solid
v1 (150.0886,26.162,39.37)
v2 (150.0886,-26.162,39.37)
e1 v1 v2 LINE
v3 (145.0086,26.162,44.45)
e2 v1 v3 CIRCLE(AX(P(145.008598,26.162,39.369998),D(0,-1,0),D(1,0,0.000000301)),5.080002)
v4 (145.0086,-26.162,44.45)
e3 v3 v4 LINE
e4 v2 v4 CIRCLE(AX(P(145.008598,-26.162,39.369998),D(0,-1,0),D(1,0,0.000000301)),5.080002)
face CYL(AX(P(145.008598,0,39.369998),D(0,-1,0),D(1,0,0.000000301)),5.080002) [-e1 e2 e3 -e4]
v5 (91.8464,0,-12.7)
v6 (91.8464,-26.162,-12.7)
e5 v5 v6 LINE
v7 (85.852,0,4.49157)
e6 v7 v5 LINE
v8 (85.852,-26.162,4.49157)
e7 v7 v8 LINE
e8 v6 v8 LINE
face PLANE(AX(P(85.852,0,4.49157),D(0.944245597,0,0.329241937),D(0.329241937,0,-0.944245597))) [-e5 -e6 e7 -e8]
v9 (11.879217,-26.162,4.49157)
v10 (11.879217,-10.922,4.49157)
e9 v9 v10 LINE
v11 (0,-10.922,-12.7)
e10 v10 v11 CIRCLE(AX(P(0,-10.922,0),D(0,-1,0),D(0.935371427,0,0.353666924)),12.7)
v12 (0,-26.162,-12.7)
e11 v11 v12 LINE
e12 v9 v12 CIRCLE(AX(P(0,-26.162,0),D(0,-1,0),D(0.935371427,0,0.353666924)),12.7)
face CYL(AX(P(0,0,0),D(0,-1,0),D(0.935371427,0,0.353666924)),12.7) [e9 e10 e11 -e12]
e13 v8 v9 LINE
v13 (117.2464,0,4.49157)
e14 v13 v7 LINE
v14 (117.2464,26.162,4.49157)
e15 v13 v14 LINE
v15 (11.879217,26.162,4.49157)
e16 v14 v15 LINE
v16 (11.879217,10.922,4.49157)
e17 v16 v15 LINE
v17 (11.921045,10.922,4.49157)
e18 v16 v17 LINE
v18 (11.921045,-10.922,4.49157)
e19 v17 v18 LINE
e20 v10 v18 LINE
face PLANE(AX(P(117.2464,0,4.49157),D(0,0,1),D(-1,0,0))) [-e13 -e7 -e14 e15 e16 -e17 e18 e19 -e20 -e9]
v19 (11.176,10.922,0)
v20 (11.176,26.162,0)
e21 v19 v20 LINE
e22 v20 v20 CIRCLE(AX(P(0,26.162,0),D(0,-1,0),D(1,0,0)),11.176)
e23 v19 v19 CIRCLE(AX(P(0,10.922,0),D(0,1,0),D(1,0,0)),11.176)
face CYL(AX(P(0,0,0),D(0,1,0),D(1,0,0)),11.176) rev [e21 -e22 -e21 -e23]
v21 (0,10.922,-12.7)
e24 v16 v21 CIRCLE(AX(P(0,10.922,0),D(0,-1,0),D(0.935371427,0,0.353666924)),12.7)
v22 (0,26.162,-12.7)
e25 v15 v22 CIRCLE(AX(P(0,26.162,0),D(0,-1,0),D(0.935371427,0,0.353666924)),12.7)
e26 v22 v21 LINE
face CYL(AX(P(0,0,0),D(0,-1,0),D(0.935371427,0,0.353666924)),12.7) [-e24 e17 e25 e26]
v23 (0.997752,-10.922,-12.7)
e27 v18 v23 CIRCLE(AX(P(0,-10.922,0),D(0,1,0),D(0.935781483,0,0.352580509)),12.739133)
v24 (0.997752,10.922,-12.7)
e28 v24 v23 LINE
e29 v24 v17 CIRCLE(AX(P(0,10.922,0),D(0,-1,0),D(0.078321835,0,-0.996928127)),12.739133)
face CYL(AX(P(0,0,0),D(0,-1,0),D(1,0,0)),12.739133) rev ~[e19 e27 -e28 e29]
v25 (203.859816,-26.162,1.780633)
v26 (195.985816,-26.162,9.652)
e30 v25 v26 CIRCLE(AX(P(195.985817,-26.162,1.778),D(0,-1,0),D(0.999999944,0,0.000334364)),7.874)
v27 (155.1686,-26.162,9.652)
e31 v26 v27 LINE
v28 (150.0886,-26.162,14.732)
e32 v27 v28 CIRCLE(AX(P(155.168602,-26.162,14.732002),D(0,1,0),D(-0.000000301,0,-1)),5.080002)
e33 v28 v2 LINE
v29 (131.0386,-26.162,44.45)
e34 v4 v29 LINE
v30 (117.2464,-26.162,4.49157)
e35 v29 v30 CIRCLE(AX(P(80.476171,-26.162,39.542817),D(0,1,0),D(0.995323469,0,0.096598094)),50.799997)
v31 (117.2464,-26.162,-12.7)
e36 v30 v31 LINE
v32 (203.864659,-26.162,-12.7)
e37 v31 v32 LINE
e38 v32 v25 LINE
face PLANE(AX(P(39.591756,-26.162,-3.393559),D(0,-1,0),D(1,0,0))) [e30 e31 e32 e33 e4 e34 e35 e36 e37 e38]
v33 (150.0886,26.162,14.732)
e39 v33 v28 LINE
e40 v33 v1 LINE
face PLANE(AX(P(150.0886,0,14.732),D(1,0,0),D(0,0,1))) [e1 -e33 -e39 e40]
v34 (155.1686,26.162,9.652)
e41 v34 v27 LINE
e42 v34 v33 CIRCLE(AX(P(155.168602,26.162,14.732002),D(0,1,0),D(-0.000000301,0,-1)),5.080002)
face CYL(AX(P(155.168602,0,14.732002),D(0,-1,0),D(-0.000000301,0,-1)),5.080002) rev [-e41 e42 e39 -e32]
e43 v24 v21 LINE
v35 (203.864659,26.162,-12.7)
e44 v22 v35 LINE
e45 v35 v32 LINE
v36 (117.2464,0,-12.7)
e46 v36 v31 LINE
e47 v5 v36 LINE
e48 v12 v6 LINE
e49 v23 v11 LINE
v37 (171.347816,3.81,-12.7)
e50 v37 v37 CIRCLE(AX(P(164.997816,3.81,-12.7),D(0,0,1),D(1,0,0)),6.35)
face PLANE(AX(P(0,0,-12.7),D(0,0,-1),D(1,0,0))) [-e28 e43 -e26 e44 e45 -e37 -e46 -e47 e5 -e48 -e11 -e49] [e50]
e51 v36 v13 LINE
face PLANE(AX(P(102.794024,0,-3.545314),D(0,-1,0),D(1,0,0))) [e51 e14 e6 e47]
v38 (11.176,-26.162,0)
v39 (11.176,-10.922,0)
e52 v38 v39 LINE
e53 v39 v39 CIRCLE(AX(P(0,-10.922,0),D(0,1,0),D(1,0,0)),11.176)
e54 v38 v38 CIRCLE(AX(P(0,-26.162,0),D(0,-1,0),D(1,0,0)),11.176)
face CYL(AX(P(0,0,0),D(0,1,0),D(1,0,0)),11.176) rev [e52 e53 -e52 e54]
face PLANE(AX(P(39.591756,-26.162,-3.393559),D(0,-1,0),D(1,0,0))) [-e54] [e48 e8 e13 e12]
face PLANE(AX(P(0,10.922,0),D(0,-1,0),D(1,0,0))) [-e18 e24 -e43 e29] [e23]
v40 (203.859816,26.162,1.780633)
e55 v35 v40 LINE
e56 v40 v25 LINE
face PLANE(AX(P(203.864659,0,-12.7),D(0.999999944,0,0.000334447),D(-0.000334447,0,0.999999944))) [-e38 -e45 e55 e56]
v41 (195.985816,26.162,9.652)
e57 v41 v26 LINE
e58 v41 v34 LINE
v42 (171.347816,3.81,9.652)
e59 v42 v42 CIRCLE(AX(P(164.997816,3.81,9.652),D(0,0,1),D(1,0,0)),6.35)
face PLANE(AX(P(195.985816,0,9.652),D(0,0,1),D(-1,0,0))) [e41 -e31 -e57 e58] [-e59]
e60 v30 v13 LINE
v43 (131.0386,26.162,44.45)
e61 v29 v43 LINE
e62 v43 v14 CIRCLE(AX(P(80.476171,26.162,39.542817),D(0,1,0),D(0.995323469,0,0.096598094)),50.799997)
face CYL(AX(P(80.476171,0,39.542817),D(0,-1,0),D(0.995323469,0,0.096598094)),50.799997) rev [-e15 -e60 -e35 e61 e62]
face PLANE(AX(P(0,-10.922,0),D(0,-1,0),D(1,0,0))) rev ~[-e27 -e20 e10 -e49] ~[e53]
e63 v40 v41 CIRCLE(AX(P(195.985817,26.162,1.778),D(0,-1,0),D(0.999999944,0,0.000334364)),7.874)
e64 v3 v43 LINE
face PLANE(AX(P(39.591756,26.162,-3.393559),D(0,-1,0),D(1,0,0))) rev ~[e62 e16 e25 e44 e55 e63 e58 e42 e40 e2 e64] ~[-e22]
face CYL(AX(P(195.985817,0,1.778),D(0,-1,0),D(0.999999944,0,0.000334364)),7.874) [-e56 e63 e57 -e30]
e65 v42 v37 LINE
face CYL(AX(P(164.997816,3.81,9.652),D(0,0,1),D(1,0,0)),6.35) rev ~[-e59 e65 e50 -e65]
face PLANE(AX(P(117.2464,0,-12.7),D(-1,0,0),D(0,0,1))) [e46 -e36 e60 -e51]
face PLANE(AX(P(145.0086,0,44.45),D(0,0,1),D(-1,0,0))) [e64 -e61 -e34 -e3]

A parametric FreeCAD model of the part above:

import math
import FreeCAD as App
import Part
import Sketcher
from FreeCAD import Vector
Q = App.Units.Quantity


def add_polygon(sketch, points):
    """Adds a closed chain of lines whose ends are joined by coincident constraints."""
    first, n = sketch.GeometryCount, len(points)
    for a, b in zip(points, points[1:] + points[:1]):
        sketch.addGeometry(Part.LineSegment(App.Vector(*a, 0), App.Vector(*b, 0)), False)
    for i in range(n):
        sketch.addConstraint(Sketcher.Constraint("Coincident", first + i, 2, first + (i + 1) % n, 1))

doc = App.newDocument("Part")
body = doc.addObject("PartDesign::Body", "Body")

# Sketch on XZ plane
sketch1 = body.newObject("Sketcher::SketchObject", "Sketch")
sketch1.AttachmentSupport = (doc.getObject("XZ_Plane"), [""])
sketch1.MapMode = "FlatFace"
sketch1.addGeometry([
    Part.ArcOfCircle(Part.Circle(Vector(0, 0, 0), Vector(0, 0, 1), 13), math.radians(21), math.radians(270)),  # 0
    Part.LineSegment(Vector(0, -13, 0), Vector(204, -13, 0)),  # 1
    Part.LineSegment(Vector(204, -13, 0), Vector(204, 2, 0)),  # 2
    Part.ArcOfCircle(Part.Circle(Vector(196, 2, 0), Vector(0, 0, 1), 8), math.radians(0), math.radians(90)),  # 3
    Part.LineSegment(Vector(196, 10, 0), Vector(155, 10, 0)),  # 4
    Part.ArcOfCircle(Part.Circle(Vector(155, 15, 0), Vector(0, 0, 1), 5), math.radians(-180), math.radians(-90)),  # 5
    Part.LineSegment(Vector(150, 15, 0), Vector(150, 39, 0)),  # 6
    Part.ArcOfCircle(Part.Circle(Vector(145, 39, 0), Vector(0, 0, 1), 5), math.radians(0), math.radians(90)),  # 7
    Part.LineSegment(Vector(145, 44, 0), Vector(131, 44, 0)),  # 8
    Part.ArcOfCircle(Part.Circle(Vector(80, 40, 0), Vector(0, 0, 1), 51), math.radians(-44), math.radians(6)),  # 9
    Part.LineSegment(Vector(117, 4, 0), Vector(12, 4, 0)),  # 10
    Part.Circle(Vector(0, 0, 0), Vector(0, 0, 1), 11),  # 11
], False)
sketch1.addConstraint([
    Sketcher.Constraint("Tangent", 0, 2, 1, 1),
    Sketcher.Constraint("Coincident", 1, 2, 2, 1),
    Sketcher.Constraint("Tangent", 2, 2, 3, 1),
    Sketcher.Constraint("Tangent", 3, 2, 4, 1),
    Sketcher.Constraint("Tangent", 4, 2, 5, 2),
    Sketcher.Constraint("Tangent", 5, 1, 6, 1),
    Sketcher.Constraint("Tangent", 6, 2, 7, 1),
    Sketcher.Constraint("Tangent", 7, 2, 8, 1),
    Sketcher.Constraint("Coincident", 8, 2, 9, 2),
    Sketcher.Constraint("Coincident", 9, 1, 10, 1),
    Sketcher.Constraint("Coincident", 10, 2, 0, 1),
    Sketcher.Constraint("Horizontal", 1),
    Sketcher.Constraint("Horizontal", 4),
    Sketcher.Constraint("Vertical", 6),
    Sketcher.Constraint("Horizontal", 8),
    Sketcher.Constraint("Horizontal", 10),
    Sketcher.Constraint("Coincident", 0, 3, -1, 1),
    Sketcher.Constraint("Coincident", 11, 3, -1, 1),
    Sketcher.Constraint("Equal", 5, 7),
    Sketcher.Constraint("Radius", 9, Q("1.9999999 in")),
    Sketcher.Constraint("Radius", 0, Q("0.5 in")),
    Sketcher.Constraint("Radius", 5, Q("0.2000001 in")),
    Sketcher.Constraint("Diameter", 11, Q("0.88 in")),
    Sketcher.Constraint("Radius", 3, Q("0.31 in")),
    Sketcher.Constraint("DistanceX", 8, 2, 8, 1, Q("0.55 in")),
    Sketcher.Constraint("DistanceY", 6, 1, 6, 2, Q("0.97 in")),
    Sketcher.Constraint("DistanceY", -1, 1, 3, 3, Q("0.07 in")),
    Sketcher.Constraint("DistanceX", -1, 1, 5, 3, Q("6.1090001 in")),
    Sketcher.Constraint("DistanceX", -1, 1, 9, 1, Q("4.616 in")),
    Sketcher.Constraint("DistanceY", 2, 2, 9, 3, Q("1.4867002 in")),
    Sketcher.Constraint("DistanceX", 1, 1, 1, 2, 203.864659),
    Sketcher.Constraint("DistanceX", 4, 2, 4, 1, 40.817216),
])
pad1 = body.newObject("PartDesign::Pad", "Pad")
pad1.Profile = sketch1
pad1.Length = Q("2.06 in")
pad1.Midplane = True

# Sketch on XZ plane
sketch2 = body.newObject("Sketcher::SketchObject", "Sketch001")
sketch2.AttachmentSupport = (doc.getObject("XZ_Plane"), [""])
sketch2.MapMode = "FlatFace"
add_polygon(sketch2, [(117, 4), (86, 4), (92, -13), (117, -13)])  # lines 0-3
sketch2.addConstraint([
    Sketcher.Constraint("Horizontal", 0),
    Sketcher.Constraint("Horizontal", 2),
    Sketcher.Constraint("Vertical", 3),
    Sketcher.Constraint("DistanceX", 2, 1, 2, 2, Q("1 in")),
    Sketcher.Constraint("DistanceY", 1, 2, -1, 1, Q("0.5 in")),
    Sketcher.Constraint("DistanceX", 0, 2, 0, 1, Q("1.236 in")),
    Sketcher.Constraint("DistanceX", -1, 1, 0, 2, Q("3.38 in")),
    Sketcher.Constraint("DistanceY", 3, 1, 3, 2, 17.19157),
])
pocket1 = body.newObject("PartDesign::Pocket", "Pocket")
pocket1.Profile = sketch2
pocket1.Type = "ThroughAll"
pocket1.Reversed = True

# Sketch on XZ plane
sketch3 = body.newObject("Sketcher::SketchObject", "Sketch002")
sketch3.AttachmentSupport = (doc.getObject("XZ_Plane"), [""])
sketch3.MapMode = "FlatFace"
sketch3.addGeometry(Part.Circle(Vector(0, 0, 0), Vector(0, 0, 1), 13), False)
sketch3.addConstraint([
    Sketcher.Constraint("Coincident", 0, 3, -1, 1),
    Sketcher.Constraint("Diameter", 0, 25.478266),
])
pocket2 = body.newObject("PartDesign::Pocket", "Pocket001")
pocket2.Profile = sketch3
pocket2.Length = Q("0.86 in")
pocket2.Midplane = True

# Sketch on XY plane
sketch4 = body.newObject("Sketcher::SketchObject", "Sketch003")
sketch4.AttachmentSupport = (doc.getObject("XY_Plane"), [""])
sketch4.MapMode = "FlatFace"
sketch4.AttachmentOffset = App.Placement(Vector(0, 0, 0.38 * 25.4), App.Rotation())
sketch4.addGeometry(Part.Circle(Vector(165, 4, 0), Vector(0, 0, 1), 6), False)
sketch4.addConstraint([
    Sketcher.Constraint("Diameter", 0, Q("0.5 in")),
    Sketcher.Constraint("DistanceY", -1, 1, 0, 3, Q("0.15 in")),
    Sketcher.Constraint("DistanceX", -1, 1, 0, 3, 164.997816),
])
pocket3 = body.newObject("PartDesign::Pocket", "Pocket002")
pocket3.Profile = sketch4
pocket3.Type = "ThroughAll"

doc.recompute()
